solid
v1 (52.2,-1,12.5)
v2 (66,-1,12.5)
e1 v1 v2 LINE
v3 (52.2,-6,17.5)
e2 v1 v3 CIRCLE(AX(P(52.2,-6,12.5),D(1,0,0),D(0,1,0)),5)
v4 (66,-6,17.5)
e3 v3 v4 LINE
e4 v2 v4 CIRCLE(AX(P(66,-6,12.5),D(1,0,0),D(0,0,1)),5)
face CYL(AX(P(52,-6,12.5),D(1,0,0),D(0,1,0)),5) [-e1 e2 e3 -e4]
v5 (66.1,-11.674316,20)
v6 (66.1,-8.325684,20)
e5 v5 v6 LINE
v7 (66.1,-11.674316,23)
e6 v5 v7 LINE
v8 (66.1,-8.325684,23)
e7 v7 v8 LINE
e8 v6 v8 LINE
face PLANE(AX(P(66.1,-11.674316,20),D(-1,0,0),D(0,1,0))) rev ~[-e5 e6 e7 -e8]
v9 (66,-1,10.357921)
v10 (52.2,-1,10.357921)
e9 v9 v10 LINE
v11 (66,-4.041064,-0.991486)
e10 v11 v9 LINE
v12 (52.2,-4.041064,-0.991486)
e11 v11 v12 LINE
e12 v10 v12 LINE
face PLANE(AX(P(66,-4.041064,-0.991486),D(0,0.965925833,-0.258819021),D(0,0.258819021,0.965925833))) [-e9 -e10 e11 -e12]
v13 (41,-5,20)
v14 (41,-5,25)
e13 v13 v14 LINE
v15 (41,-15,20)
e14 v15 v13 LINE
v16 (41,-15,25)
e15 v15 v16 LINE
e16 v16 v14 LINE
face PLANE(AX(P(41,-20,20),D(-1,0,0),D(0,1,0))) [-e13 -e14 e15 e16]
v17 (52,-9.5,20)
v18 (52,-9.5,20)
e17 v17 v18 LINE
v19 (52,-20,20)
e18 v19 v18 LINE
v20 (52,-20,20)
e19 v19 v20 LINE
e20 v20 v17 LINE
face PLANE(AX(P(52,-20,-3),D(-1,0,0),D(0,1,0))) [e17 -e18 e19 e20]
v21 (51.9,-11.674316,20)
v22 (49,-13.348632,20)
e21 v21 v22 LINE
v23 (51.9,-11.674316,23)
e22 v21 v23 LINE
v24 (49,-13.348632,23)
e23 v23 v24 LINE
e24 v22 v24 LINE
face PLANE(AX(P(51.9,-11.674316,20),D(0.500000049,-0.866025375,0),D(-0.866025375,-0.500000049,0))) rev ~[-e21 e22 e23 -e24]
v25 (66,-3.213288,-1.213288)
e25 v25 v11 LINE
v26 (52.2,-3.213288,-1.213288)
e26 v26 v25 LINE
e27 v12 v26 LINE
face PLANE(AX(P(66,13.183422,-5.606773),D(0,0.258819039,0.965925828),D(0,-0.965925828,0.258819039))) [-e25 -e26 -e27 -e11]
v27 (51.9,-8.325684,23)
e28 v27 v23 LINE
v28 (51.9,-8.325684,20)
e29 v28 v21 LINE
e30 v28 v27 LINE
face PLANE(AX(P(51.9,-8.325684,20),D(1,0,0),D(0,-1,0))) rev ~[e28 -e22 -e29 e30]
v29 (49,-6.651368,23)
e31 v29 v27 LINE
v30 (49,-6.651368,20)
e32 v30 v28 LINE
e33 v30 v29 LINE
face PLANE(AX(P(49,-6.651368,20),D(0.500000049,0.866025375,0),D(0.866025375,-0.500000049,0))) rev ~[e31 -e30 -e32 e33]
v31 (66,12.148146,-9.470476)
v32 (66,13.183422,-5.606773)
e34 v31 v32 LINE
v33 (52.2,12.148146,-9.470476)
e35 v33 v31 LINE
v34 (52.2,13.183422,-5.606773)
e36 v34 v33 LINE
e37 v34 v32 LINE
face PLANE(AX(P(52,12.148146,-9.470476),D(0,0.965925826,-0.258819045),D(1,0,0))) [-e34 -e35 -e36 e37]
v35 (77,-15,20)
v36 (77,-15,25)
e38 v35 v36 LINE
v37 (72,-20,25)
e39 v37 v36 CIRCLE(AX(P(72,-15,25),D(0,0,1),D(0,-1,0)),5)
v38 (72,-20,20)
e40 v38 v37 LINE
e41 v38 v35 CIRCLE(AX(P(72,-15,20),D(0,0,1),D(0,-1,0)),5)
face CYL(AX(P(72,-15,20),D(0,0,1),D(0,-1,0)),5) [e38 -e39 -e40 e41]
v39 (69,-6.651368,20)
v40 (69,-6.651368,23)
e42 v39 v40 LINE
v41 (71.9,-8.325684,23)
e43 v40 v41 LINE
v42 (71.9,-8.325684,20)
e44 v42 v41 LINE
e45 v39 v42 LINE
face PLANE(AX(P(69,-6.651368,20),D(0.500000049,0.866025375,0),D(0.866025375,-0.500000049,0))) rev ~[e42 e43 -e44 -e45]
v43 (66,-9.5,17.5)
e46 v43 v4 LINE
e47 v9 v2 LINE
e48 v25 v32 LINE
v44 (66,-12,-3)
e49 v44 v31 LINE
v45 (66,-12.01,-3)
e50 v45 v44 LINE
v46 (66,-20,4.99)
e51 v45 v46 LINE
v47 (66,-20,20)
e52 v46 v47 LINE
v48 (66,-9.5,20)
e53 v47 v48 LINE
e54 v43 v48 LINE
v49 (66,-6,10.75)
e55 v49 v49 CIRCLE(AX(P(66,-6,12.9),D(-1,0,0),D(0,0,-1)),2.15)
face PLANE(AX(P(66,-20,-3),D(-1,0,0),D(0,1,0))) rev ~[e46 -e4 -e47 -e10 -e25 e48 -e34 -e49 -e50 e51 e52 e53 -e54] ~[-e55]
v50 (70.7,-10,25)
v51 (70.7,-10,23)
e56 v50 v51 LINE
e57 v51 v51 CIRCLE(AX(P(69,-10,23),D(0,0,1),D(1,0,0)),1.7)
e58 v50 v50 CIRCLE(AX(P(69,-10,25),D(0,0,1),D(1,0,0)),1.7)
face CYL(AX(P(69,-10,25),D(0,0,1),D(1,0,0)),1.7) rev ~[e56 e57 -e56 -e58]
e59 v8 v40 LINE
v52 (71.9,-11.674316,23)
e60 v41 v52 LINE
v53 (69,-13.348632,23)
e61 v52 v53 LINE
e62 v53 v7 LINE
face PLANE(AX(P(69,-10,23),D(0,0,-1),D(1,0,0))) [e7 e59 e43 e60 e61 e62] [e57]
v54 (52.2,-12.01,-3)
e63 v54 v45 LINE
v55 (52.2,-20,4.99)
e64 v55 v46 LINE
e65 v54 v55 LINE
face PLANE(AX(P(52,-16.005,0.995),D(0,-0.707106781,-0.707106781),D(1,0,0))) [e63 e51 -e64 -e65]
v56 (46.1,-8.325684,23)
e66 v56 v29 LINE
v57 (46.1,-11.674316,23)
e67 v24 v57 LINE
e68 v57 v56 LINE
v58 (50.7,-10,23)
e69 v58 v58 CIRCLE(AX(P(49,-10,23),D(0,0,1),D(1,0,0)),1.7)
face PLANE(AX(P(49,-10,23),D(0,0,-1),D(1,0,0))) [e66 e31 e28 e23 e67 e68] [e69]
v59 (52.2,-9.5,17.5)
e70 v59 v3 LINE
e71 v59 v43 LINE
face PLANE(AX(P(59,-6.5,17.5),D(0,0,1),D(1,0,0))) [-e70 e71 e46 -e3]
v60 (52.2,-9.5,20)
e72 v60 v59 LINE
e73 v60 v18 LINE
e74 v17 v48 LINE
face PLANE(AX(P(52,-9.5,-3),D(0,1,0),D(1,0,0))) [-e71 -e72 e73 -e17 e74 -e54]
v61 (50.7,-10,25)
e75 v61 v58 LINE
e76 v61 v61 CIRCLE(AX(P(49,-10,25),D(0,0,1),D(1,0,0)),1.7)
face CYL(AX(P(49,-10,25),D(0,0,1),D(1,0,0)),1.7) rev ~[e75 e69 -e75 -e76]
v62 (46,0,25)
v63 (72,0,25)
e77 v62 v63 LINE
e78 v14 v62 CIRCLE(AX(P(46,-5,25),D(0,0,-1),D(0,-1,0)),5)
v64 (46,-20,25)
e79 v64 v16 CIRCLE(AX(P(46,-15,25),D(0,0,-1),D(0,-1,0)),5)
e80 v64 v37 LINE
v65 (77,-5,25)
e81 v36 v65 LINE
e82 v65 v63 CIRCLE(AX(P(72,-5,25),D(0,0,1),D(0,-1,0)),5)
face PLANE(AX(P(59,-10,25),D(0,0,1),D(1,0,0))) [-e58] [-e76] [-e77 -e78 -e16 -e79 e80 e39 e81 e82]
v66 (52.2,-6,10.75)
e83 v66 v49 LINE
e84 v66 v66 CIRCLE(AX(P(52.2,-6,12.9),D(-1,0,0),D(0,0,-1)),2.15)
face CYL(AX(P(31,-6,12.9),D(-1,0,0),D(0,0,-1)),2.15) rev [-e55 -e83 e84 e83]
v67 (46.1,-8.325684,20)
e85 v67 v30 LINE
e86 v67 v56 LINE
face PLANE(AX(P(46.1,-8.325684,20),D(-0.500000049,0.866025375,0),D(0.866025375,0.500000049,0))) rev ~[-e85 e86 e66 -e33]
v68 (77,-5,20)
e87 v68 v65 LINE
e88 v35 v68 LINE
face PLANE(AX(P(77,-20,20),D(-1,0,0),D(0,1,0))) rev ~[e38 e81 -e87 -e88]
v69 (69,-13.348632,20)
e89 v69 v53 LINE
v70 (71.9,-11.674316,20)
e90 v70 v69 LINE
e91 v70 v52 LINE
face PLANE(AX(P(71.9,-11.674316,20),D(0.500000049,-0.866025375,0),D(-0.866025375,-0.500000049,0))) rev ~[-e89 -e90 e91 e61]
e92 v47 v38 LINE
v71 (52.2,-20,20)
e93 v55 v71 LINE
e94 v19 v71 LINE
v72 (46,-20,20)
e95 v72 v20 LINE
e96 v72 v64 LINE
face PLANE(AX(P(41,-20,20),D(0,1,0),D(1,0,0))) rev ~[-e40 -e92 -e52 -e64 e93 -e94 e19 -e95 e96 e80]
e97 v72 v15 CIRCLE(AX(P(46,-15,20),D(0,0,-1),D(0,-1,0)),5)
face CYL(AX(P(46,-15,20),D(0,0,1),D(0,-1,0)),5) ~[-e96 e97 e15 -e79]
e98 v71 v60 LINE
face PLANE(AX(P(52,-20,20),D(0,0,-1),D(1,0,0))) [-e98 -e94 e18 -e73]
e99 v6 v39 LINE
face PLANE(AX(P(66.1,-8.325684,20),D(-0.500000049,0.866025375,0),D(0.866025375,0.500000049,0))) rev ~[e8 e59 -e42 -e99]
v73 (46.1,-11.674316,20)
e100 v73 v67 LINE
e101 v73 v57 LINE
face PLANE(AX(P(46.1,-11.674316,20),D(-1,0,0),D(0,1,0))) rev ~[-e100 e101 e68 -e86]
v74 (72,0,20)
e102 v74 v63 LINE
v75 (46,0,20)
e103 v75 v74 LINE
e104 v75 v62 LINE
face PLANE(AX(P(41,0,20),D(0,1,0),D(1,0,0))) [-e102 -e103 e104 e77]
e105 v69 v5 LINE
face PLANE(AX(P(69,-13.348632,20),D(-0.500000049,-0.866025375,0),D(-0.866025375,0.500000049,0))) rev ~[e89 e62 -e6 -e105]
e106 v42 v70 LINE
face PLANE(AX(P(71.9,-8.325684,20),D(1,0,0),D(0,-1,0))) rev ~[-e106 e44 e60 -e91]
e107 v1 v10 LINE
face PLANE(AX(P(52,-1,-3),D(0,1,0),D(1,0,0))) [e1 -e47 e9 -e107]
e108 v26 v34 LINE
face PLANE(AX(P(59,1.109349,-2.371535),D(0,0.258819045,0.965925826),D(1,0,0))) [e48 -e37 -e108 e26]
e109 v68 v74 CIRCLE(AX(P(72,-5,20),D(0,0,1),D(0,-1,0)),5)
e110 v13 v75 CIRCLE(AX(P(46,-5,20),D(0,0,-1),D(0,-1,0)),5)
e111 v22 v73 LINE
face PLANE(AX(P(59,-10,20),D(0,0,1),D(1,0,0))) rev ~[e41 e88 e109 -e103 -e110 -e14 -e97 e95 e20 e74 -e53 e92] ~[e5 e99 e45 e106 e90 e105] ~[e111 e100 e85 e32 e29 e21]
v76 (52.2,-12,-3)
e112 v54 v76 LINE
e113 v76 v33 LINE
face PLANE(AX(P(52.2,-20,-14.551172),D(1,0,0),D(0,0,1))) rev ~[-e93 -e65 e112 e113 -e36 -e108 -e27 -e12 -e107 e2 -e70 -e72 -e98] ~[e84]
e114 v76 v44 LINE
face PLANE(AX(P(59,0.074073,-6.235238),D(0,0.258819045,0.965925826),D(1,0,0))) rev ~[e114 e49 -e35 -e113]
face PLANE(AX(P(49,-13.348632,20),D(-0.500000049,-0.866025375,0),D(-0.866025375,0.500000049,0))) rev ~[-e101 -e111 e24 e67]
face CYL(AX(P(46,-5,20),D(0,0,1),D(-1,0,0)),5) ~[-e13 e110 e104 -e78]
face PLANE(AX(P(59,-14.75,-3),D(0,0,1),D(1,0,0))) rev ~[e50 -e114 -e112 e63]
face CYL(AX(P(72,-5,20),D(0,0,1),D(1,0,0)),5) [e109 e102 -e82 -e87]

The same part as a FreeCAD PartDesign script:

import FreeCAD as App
import Part
import Sketcher

V = App.Vector
Q = App.Units.Quantity


def edges_at(feature, points):
    """Names of the edges that pass closest to the given points."""
    edges = feature.Shape.Edges
    near = lambda p: min(range(len(edges)), key=lambda i: edges[i].distToShape(Part.Vertex(*p))[0])
    return sorted({f"Edge{near(p) + 1}" for p in points})

doc = App.newDocument("Part")
body = doc.addObject("PartDesign::Body", "Body")

# Sketch on XY plane
sketch1 = body.newObject("Sketcher::SketchObject", "Sketch")
sketch1.AttachmentSupport = (doc.getObject("XY_Plane"), [""])
sketch1.MapMode = "FlatFace"
sketch1.AttachmentOffset = App.Placement(V(0, 0, -3), App.Rotation())
sketch1.addGeometry([
    Part.LineSegment(V(52, -10, 0), V(52, -20, 0)),
    Part.LineSegment(V(52, -20, 0), V(66, -20, 0)),
    Part.LineSegment(V(66, -20, 0), V(66, -10, 0)),
    Part.LineSegment(V(66, -10, 0), V(52, -10, 0)),
], False)
sketch1.addConstraint([
    Sketcher.Constraint("Coincident", 0, 2, 1, 1),
    Sketcher.Constraint("Coincident", 1, 2, 2, 1),
    Sketcher.Constraint("Coincident", 2, 2, 3, 1),
    Sketcher.Constraint("Coincident", 3, 2, 0, 1),
    Sketcher.Constraint("Vertical", 0),
    Sketcher.Constraint("Horizontal", 1),
    Sketcher.Constraint("Vertical", 2),
    Sketcher.Constraint("Horizontal", 3),
    Sketcher.Constraint("DistanceX", 1, 1, 1, 2, Q("14 mm")),
    Sketcher.Constraint("DistanceY", 0, 2, 0, 1, Q("10.5 mm")),
    Sketcher.Constraint("DistanceX", -1, 1, 0, 2, Q("52 mm")),
    Sketcher.Constraint("DistanceY", 0, 2, -1, 1, Q("20 mm")),
])
pad1 = body.newObject("PartDesign::Pad", "Pad")
pad1.Profile = sketch1
pad1.Length = 23
body2 = doc.addObject("PartDesign::Body", "Body001")

# Sketch on XY plane
sketch2 = body2.newObject("Sketcher::SketchObject", "Sketch001")
sketch2.AttachmentSupport = (doc.getObject("XY_Plane001"), [""])
sketch2.MapMode = "FlatFace"
sketch2.AttachmentOffset = App.Placement(V(0, 0, 20), App.Rotation())
sketch2.addGeometry([
    Part.LineSegment(V(41, 0, 0), V(41, -20, 0)),
    Part.LineSegment(V(41, -20, 0), V(77, -20, 0)),
    Part.LineSegment(V(77, -20, 0), V(77, 0, 0)),
    Part.LineSegment(V(77, 0, 0), V(41, 0, 0)),
], False)
sketch2.addConstraint([
    Sketcher.Constraint("Coincident", 0, 2, 1, 1),
    Sketcher.Constraint("Coincident", 1, 2, 2, 1),
    Sketcher.Constraint("Coincident", 2, 2, 3, 1),
    Sketcher.Constraint("Coincident", 3, 2, 0, 1),
    Sketcher.Constraint("Vertical", 0),
    Sketcher.Constraint("Horizontal", 1),
    Sketcher.Constraint("Vertical", 2),
    Sketcher.Constraint("Horizontal", 3),
    Sketcher.Constraint("PointOnObject", 2, 2, -1),
    Sketcher.Constraint("DistanceX", 1, 1, 1, 2, Q("36 mm")),
    Sketcher.Constraint("DistanceY", 0, 2, 0, 1, Q("20 mm")),
    Sketcher.Constraint("DistanceX", -1, 1, 0, 2, Q("41 mm")),
])
pad2 = body2.newObject("PartDesign::Pad", "Pad001")
pad2.Profile = sketch2
pad2.Length = 5

# Sketch on XY plane
sketch3 = body2.newObject("Sketcher::SketchObject", "Sketch002")
sketch3.AttachmentSupport = (doc.getObject("XY_Plane001"), [""])
sketch3.MapMode = "FlatFace"
sketch3.AttachmentOffset = App.Placement(V(0, 0, 25), App.Rotation())
sketch3.addGeometry([
    Part.Circle(V(49, -10, 0), V(0, 0, 1), 1.7),
    Part.Circle(V(69, -10, 0), V(0, 0, 1), 1.7),
], False)
sketch3.addConstraint([
    Sketcher.Constraint("Equal", 0, 1),
    Sketcher.Constraint("Horizontal", 0, 3, 1, 3),
    Sketcher.Constraint("Diameter", 0, Q("3.4 mm")),
    Sketcher.Constraint("DistanceX", -1, 1, 0, 3, Q("49 mm")),
    Sketcher.Constraint("DistanceY", 0, 3, -1, 1, Q("10 mm")),
    Sketcher.Constraint("DistanceX", -1, 1, 1, 3, Q("69 mm")),
])
pocket1 = body2.newObject("PartDesign::Pocket", "Pocket")
pocket1.Profile = sketch3
pocket1.Length = 5

# Sketch on XY plane
sketch4 = body2.newObject("Sketcher::SketchObject", "Sketch003")
sketch4.AttachmentSupport = (doc.getObject("XY_Plane001"), [""])
sketch4.MapMode = "FlatFace"
sketch4.AttachmentOffset = App.Placement(V(0, 0, 20), App.Rotation())
sketch4.addGeometry([
    Part.LineSegment(V(66.1, -11.7, 0), V(66.1, -8.3, 0)),  # 0
    Part.LineSegment(V(66.1, -8.3, 0), V(69, -6.7, 0)),  # 1
    Part.LineSegment(V(69, -6.7, 0), V(71.9, -8.3, 0)),  # 2
    Part.LineSegment(V(71.9, -8.3, 0), V(71.9, -11.7, 0)),  # 3
    Part.LineSegment(V(71.9, -11.7, 0), V(69, -13.3, 0)),  # 4
    Part.LineSegment(V(69, -13.3, 0), V(66.1, -11.7, 0)),  # 5
    Part.LineSegment(V(51.9, -8.3, 0), V(51.9, -11.7, 0)),  # 6
    Part.LineSegment(V(51.9, -11.7, 0), V(49, -13.3, 0)),  # 7
    Part.LineSegment(V(49, -13.3, 0), V(46.1, -11.7, 0)),  # 8
    Part.LineSegment(V(46.1, -11.7, 0), V(46.1, -8.3, 0)),  # 9
    Part.LineSegment(V(46.1, -8.3, 0), V(49, -6.7, 0)),  # 10
    Part.LineSegment(V(49, -6.7, 0), V(51.9, -8.3, 0)),  # 11
], False)
sketch4.addConstraint([
    Sketcher.Constraint("Coincident", 0, 2, 1, 1),
    Sketcher.Constraint("Coincident", 1, 2, 2, 1),
    Sketcher.Constraint("Coincident", 2, 2, 3, 1),
    Sketcher.Constraint("Coincident", 3, 2, 4, 1),
    Sketcher.Constraint("Coincident", 4, 2, 5, 1),
    Sketcher.Constraint("Coincident", 5, 2, 0, 1),
    Sketcher.Constraint("Coincident", 6, 2, 7, 1),
    Sketcher.Constraint("Coincident", 7, 2, 8, 1),
    Sketcher.Constraint("Coincident", 8, 2, 9, 1),
    Sketcher.Constraint("Coincident", 9, 2, 10, 1),
    Sketcher.Constraint("Coincident", 10, 2, 11, 1),
    Sketcher.Constraint("Coincident", 11, 2, 6, 1),
    Sketcher.Constraint("Vertical", 0),
    Sketcher.Constraint("Vertical", 3),
    Sketcher.Constraint("Vertical", 6),
    Sketcher.Constraint("Vertical", 9),
    Sketcher.Constraint("Parallel", 1, 4),
    Sketcher.Constraint("Parallel", 2, 5),
    Sketcher.Constraint("Parallel", 4, 7),
    Sketcher.Constraint("Parallel", 5, 8),
    Sketcher.Constraint("Parallel", 7, 10),
    Sketcher.Constraint("Parallel", 8, 11),
    Sketcher.Constraint("Horizontal", 0, 2, 2, 2),
    Sketcher.Constraint("Horizontal", 3, 2, 5, 2),
    Sketcher.Constraint("Horizontal", 5, 2, 6, 2),
    Sketcher.Constraint("Horizontal", 4, 2, 7, 2),
    Sketcher.Constraint("Horizontal", 6, 2, 8, 2),
    Sketcher.Constraint("Horizontal", 2, 2, 9, 2),
    Sketcher.Constraint("Horizontal", 1, 2, 10, 2),
    Sketcher.Constraint("Vertical", 1, 2, 4, 2),
    Sketcher.Constraint("Angle", 1, Q("30.000003 deg")),
    Sketcher.Constraint("DistanceX", -1, 1, 1, 2, Q("69 mm")),
    Sketcher.Constraint("DistanceX", -1, 1, 7, 2, Q("49 mm")),
    Sketcher.Constraint("DistanceX", -1, 1, 0, 2, Q("66.1 mm")),
    Sketcher.Constraint("DistanceY", 0, 1, 0, 2, Q("3.348632 mm")),
    Sketcher.Constraint("DistanceY", 0, 2, -1, 1, Q("8.325684 mm")),
])
pocket2 = body2.newObject("PartDesign::Pocket", "Pocket001")
pocket2.Profile = sketch4
pocket2.Length = 3
pocket2.Reversed = True
doc.recompute()

boolean = body2.newObject("PartDesign::Boolean", "Boolean")
boolean.Type = "Fuse"
boolean.addObjects([body])
body3 = doc.addObject("PartDesign::Body", "Body002")

# Sketch on XY plane
sketch5 = body3.newObject("Sketcher::SketchObject", "Sketch004")
sketch5.AttachmentSupport = (doc.getObject("XY_Plane002"), [""])
sketch5.MapMode = "FlatFace"
sketch5.addGeometry(Part.Circle(V(0, 0, 0), V(0, 0, 1), 2.1), False)
sketch5.addConstraint([
    Sketcher.Constraint("Coincident", 0, 3, -1, 1),
    Sketcher.Constraint("Diameter", 0, Q("4.3 mm")),
])
pad3 = body3.newObject("PartDesign::Pad", "Pad002")
pad3.Profile = sketch5
pad3.Length = 50
body4 = doc.addObject("PartDesign::Body", "Body003")
doc.recompute()

body3.Placement = App.Placement(V(0, 0, 0), App.Rotation(V(0, 1, 0), 90))
boolean2 = body4.newObject("PartDesign::Boolean", "Boolean001")
boolean2.Type = "Fuse"
boolean2.addObjects([body3])
body5 = doc.addObject("PartDesign::Body", "Body004")
doc.recompute()

body4.Placement = App.Placement(V(31, -6, 12.9), App.Rotation(V(0, 0, 1), 0))
boolean3 = body5.newObject("PartDesign::Boolean", "Boolean002")
boolean3.Type = "Fuse"
boolean3.addObjects([body4])
body6 = doc.addObject("PartDesign::Body", "Body005")

# Sketch on XY plane
sketch6 = body6.newObject("Sketcher::SketchObject", "Sketch005")
sketch6.AttachmentSupport = (doc.getObject("XY_Plane005"), [""])
sketch6.MapMode = "FlatFace"
sketch6.AttachmentOffset = App.Placement(V(0, 0, -3), App.Rotation())
sketch6.addGeometry([
    Part.LineSegment(V(52, -1, 0), V(52, -12, 0)),
    Part.LineSegment(V(52, -12, 0), V(66, -12, 0)),
    Part.LineSegment(V(66, -12, 0), V(66, -1, 0)),
    Part.LineSegment(V(66, -1, 0), V(52, -1, 0)),
], False)
sketch6.addConstraint([
    Sketcher.Constraint("Coincident", 0, 2, 1, 1),
    Sketcher.Constraint("Coincident", 1, 2, 2, 1),
    Sketcher.Constraint("Coincident", 2, 2, 3, 1),
    Sketcher.Constraint("Coincident", 3, 2, 0, 1),
    Sketcher.Constraint("Vertical", 0),
    Sketcher.Constraint("Horizontal", 1),
    Sketcher.Constraint("Vertical", 2),
    Sketcher.Constraint("Horizontal", 3),
    Sketcher.Constraint("DistanceX", 1, 1, 1, 2, Q("14 mm")),
    Sketcher.Constraint("DistanceY", 0, 2, 0, 1, Q("11 mm")),
    Sketcher.Constraint("DistanceX", -1, 1, 0, 2, Q("52 mm")),
    Sketcher.Constraint("DistanceY", 0, 2, -1, 1, Q("12 mm")),
])
pad4 = body6.newObject("PartDesign::Pad", "Pad003")
pad4.Profile = sketch6
pad4.Length = 20.5
doc.recompute()

chamfer = body6.newObject("PartDesign::Chamfer", "Chamfer")
chamfer.Base = (pad4, edges_at(pad4, [(59, -1, -3)]))
chamfer.Size = 4
doc.recompute()

fillet = body6.newObject("PartDesign::Fillet", "Fillet")
fillet.Base = (chamfer, edges_at(chamfer, [(59, -1, 17.5)]))
fillet.Radius = 5
body7 = doc.addObject("PartDesign::Body", "Body006")

# Sketch on XY plane
sketch7 = body7.newObject("Sketcher::SketchObject", "Sketch006")
sketch7.AttachmentSupport = (doc.getObject("XY_Plane006"), [""])
sketch7.MapMode = "FlatFace"
sketch7.addGeometry([
    Part.LineSegment(V(0, 25, 0), V(0, 0, 0)),
    Part.LineSegment(V(0, 0, 0), V(14, 0, 0)),
    Part.LineSegment(V(14, 0, 0), V(14, 25, 0)),
    Part.LineSegment(V(14, 25, 0), V(0, 25, 0)),
], False)
sketch7.addConstraint([
    Sketcher.Constraint("Coincident", 0, 2, 1, 1),
    Sketcher.Constraint("Coincident", 1, 2, 2, 1),
    Sketcher.Constraint("Coincident", 2, 2, 3, 1),
    Sketcher.Constraint("Coincident", 3, 2, 0, 1),
    Sketcher.Constraint("Vertical", 0),
    Sketcher.Constraint("Horizontal", 1),
    Sketcher.Constraint("Vertical", 2),
    Sketcher.Constraint("Horizontal", 3),
    Sketcher.Constraint("Coincident", 0, 2, -1, 1),
    Sketcher.Constraint("DistanceX", 1, 1, 1, 2, Q("14 mm")),
    Sketcher.Constraint("DistanceY", 0, 2, 0, 1, Q("25 mm")),
])
pad5 = body7.newObject("PartDesign::Pad", "Pad004")
pad5.Profile = sketch7
pad5.Length = 4
body8 = doc.addObject("PartDesign::Body", "Body007")
doc.recompute()

body7.Placement = App.Placement(V(0, 0, 0), App.Rotation(V(1, 0, 0), 345))
boolean4 = body8.newObject("PartDesign::Boolean", "Boolean003")
boolean4.Type = "Fuse"
boolean4.addObjects([body7])
body9 = doc.addObject("PartDesign::Body", "Body008")
doc.recompute()

body8.Placement = App.Placement(V(52, -12, -3), App.Rotation(V(0, 0, 1), 0))
boolean5 = body9.newObject("PartDesign::Boolean", "Boolean004")
boolean5.Type = "Fuse"
boolean5.addObjects([body8])
body10 = doc.addObject("PartDesign::Body", "Body009")

# Sketch on XY plane
sketch8 = body10.newObject("Sketcher::SketchObject", "Sketch007")
sketch8.AttachmentSupport = (doc.getObject("XY_Plane009"), [""])
sketch8.MapMode = "FlatFace"
sketch8.AttachmentOffset = App.Placement(V(0, 0, 14), App.Rotation())
sketch8.addGeometry([
    Part.LineSegment(V(52, -9.5, 0), V(52, -12, 0)),
    Part.LineSegment(V(52, -12, 0), V(66, -12, 0)),
    Part.LineSegment(V(66, -12, 0), V(66, -9.5, 0)),
    Part.LineSegment(V(66, -9.5, 0), V(52, -9.5, 0)),
], False)
sketch8.addConstraint([
    Sketcher.Constraint("Coincident", 0, 2, 1, 1),
    Sketcher.Constraint("Coincident", 1, 2, 2, 1),
    Sketcher.Constraint("Coincident", 2, 2, 3, 1),
    Sketcher.Constraint("Coincident", 3, 2, 0, 1),
    Sketcher.Constraint("Vertical", 0),
    Sketcher.Constraint("Horizontal", 1),
    Sketcher.Constraint("Vertical", 2),
    Sketcher.Constraint("Horizontal", 3),
    Sketcher.Constraint("DistanceX", 1, 1, 1, 2, Q("14 mm")),
    Sketcher.Constraint("DistanceY", 0, 2, 0, 1, Q("2.5 mm")),
    Sketcher.Constraint("DistanceX", -1, 1, 0, 2, Q("52 mm")),
    Sketcher.Constraint("DistanceY", 0, 2, -1, 1, Q("12 mm")),
])
pad6 = body10.newObject("PartDesign::Pad", "Pad005")
pad6.Profile = sketch8
pad6.Length = 5
doc.recompute()

boolean6 = body10.newObject("PartDesign::Boolean", "Boolean005")
boolean6.Type = "Fuse"
boolean6.addObjects([body6])
doc.recompute()

boolean7 = body10.newObject("PartDesign::Boolean", "Boolean006")
boolean7.Type = "Fuse"
boolean7.addObjects([body9])
doc.recompute()

boolean8 = body10.newObject("PartDesign::Boolean", "Boolean007")
boolean8.Type = "Cut"
boolean8.addObjects([body5])

# Sketch on YZ plane
sketch9 = body10.newObject("Sketcher::SketchObject", "Sketch008")
sketch9.AttachmentSupport = (doc.getObject("YZ_Plane009"), [""])
sketch9.MapMode = "FlatFace"
sketch9.AttachmentOffset = App.Placement(V(0, 0, 66), App.Rotation())
sketch9.addGeometry([
    Part.LineSegment(V(-4, -1, 0), V(13, -6, 0)),
    Part.LineSegment(V(13, -6, 0), V(0, 13, 0)),
    Part.LineSegment(V(0, 13, 0), V(-4, -1, 0)),
], False)
sketch9.addConstraint([
    Sketcher.Constraint("Coincident", 0, 2, 1, 1),
    Sketcher.Constraint("Coincident", 1, 2, 2, 1),
    Sketcher.Constraint("Coincident", 2, 2, 0, 1),
    Sketcher.Constraint("Perpendicular", 0, 2),
    Sketcher.Constraint("Angle", 0, Q("-15 deg")),
    Sketcher.Constraint("Distance", 1, Q("22.696 mm")),
    Sketcher.Constraint("Distance", 0, Q("17.8321 mm")),
    Sketcher.Constraint("DistanceX", -1, 1, 0, 2, Q("13.183422 mm")),
    Sketcher.Constraint("DistanceY", 0, 2, -1, 1, Q("5.606773 mm")),
])
pocket3 = body10.newObject("PartDesign::Pocket", "Pocket002")
pocket3.Profile = sketch9
pocket3.Length = 15
doc.recompute()

boolean9 = body10.newObject("PartDesign::Boolean", "Boolean008")
boolean9.Type = "Fuse"
boolean9.addObjects([body2])
doc.recompute()

chamfer2 = body10.newObject("PartDesign::Chamfer", "Chamfer001")
chamfer2.Base = (boolean9, edges_at(boolean9, [(59, -20, -3)]))
chamfer2.Size = 7.99
doc.recompute()

fillet2 = body10.newObject("PartDesign::Fillet", "Fillet001")
fillet2.Base = (chamfer2, edges_at(chamfer2, [
    (41, -20, 22.5),
    (77, -20, 22.5),
    (77, 0, 22.5),
    (41, 0, 22.5),
]))
fillet2.Radius = 5

# Sketch on XZ plane
sketch10 = body10.newObject("Sketcher::SketchObject", "Sketch009")
sketch10.AttachmentSupport = (doc.getObject("XZ_Plane009"), [""])
sketch10.MapMode = "FlatFace"
sketch10.AttachmentOffset = App.Placement(V(0, 0, 20), App.Rotation())
sketch10.addGeometry([
    Part.LineSegment(V(52, 20, 0), V(52, -14.55, 0)),
    Part.LineSegment(V(52, -14.55, 0), V(52.2, -14.55, 0)),
    Part.LineSegment(V(52.2, -14.55, 0), V(52.2, 20, 0)),
    Part.LineSegment(V(52.2, 20, 0), V(52, 20, 0)),
], False)
sketch10.addConstraint([
    Sketcher.Constraint("Coincident", 0, 2, 1, 1),
    Sketcher.Constraint("Coincident", 1, 2, 2, 1),
    Sketcher.Constraint("Coincident", 2, 2, 3, 1),
    Sketcher.Constraint("Coincident", 3, 2, 0, 1),
    Sketcher.Constraint("Vertical", 0),
    Sketcher.Constraint("Horizontal", 1),
    Sketcher.Constraint("Vertical", 2),
    Sketcher.Constraint("Horizontal", 3),
    Sketcher.Constraint("DistanceX", 1, 1, 1, 2, Q("0.2 mm")),
    Sketcher.Constraint("DistanceX", -1, 1, 0, 2, Q("52 mm")),
    Sketcher.Constraint("DistanceY", -1, 1, 2, 2, Q("20 mm")),
    Sketcher.Constraint("DistanceY", 0, 2, 0, 1, Q("34.551171 mm")),
])
pocket4 = body10.newObject("PartDesign::Pocket", "Pocket003")
pocket4.Profile = sketch10
pocket4.Length = 40

doc.recompute()
